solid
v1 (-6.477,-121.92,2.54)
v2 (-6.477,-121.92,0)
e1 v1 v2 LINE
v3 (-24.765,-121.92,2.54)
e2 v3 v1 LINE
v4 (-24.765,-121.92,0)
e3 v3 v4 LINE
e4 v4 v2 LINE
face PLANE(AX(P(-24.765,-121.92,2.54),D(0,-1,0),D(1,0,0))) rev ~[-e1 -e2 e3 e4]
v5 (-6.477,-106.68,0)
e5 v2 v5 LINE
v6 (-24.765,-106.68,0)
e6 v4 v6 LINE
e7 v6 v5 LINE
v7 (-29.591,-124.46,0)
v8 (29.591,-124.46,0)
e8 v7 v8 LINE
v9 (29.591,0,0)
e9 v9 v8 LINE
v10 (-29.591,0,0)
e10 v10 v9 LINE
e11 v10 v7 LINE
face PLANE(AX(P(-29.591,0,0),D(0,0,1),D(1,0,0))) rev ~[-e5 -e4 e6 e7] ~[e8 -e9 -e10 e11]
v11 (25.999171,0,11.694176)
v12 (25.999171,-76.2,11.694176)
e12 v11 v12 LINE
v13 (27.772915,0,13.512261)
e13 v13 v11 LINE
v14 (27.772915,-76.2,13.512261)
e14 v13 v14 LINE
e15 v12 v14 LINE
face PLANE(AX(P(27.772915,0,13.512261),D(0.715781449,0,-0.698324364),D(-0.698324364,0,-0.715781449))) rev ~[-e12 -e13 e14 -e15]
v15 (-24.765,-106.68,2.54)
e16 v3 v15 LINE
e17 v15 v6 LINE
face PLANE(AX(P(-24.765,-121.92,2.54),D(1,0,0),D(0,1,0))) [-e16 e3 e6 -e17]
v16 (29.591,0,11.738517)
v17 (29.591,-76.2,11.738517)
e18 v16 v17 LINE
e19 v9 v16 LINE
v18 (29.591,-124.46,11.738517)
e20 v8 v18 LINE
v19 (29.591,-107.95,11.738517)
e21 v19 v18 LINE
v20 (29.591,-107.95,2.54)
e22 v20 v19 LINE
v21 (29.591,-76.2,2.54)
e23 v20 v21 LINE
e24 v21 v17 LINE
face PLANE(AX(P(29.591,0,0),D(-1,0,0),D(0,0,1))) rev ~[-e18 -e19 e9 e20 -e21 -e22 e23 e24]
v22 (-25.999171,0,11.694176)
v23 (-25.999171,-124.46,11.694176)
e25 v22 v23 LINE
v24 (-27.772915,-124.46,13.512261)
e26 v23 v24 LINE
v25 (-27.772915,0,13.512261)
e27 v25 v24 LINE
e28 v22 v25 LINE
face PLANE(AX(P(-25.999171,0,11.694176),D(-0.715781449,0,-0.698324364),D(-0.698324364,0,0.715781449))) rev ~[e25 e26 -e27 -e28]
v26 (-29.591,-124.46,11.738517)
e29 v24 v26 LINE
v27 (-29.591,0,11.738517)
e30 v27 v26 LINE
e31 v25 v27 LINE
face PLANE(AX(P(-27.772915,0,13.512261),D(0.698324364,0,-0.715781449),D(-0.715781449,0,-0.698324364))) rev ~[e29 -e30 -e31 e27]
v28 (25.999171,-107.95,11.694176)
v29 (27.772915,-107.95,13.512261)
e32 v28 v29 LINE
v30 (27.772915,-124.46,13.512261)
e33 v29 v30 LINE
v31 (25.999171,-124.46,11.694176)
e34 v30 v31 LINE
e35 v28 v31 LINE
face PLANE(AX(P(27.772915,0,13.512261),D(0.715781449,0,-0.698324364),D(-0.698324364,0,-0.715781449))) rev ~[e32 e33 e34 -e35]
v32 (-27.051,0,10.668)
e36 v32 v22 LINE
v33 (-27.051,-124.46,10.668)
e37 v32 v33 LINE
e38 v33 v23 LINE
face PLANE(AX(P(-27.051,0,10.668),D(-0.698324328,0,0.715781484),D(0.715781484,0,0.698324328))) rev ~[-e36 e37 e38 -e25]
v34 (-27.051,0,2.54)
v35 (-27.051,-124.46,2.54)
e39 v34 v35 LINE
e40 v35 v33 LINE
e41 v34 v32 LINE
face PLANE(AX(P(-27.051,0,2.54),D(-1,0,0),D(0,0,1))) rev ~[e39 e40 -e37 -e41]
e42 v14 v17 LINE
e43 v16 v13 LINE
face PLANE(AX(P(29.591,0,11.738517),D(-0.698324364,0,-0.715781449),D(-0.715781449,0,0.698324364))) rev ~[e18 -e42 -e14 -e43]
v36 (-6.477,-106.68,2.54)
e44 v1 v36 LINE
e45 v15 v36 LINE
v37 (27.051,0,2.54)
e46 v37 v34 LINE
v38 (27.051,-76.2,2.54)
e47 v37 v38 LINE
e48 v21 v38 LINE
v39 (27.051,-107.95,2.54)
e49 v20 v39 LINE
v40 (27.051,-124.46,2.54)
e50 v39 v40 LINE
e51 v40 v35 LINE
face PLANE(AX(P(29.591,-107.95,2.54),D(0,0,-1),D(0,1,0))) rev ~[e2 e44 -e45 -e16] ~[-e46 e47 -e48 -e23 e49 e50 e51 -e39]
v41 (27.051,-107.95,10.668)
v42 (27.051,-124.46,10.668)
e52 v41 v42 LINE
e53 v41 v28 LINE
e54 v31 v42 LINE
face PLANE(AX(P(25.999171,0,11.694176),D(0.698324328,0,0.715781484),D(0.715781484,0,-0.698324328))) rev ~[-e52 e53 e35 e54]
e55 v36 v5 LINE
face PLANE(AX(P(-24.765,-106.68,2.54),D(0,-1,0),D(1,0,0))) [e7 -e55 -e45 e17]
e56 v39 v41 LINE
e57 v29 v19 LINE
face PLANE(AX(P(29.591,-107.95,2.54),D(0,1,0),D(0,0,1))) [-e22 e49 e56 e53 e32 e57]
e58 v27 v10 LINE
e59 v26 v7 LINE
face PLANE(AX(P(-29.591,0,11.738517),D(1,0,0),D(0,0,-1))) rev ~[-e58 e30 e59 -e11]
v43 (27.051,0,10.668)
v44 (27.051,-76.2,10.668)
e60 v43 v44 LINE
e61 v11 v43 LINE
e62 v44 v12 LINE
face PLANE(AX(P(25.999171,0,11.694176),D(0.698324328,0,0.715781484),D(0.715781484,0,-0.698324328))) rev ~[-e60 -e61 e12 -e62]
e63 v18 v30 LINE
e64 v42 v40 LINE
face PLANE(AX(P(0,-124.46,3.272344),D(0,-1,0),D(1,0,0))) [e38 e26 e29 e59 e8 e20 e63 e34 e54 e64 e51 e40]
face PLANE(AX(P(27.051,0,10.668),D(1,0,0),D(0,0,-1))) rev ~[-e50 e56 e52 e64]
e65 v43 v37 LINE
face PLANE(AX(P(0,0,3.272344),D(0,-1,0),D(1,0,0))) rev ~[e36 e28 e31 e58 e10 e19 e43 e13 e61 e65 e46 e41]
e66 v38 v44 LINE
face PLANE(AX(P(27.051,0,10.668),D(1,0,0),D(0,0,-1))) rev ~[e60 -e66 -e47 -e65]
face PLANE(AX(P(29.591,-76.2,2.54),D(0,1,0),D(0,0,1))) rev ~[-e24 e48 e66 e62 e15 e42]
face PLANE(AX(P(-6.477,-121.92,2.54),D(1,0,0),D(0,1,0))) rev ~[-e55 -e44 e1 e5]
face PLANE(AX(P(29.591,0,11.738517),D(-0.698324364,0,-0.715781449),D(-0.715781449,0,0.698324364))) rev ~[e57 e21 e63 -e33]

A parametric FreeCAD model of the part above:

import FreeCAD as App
import Part
import Sketcher

V = App.Vector
Q = App.Units.Quantity


def add_polygon(sketch, points):
    """Adds a closed chain of lines whose ends are joined by coincident constraints."""
    first, n = sketch.GeometryCount, len(points)
    for a, b in zip(points, points[1:] + points[:1]):
        sketch.addGeometry(Part.LineSegment(App.Vector(*a, 0), App.Vector(*b, 0)), False)
    for i in range(n):
        sketch.addConstraint(Sketcher.Constraint("Coincident", first + i, 2, first + (i + 1) % n, 1))

doc = App.newDocument("Part")
body = doc.addObject("PartDesign::Body", "Body")

# Sketch on XZ plane
sketch1 = body.newObject("Sketcher::SketchObject", "Sketch")
sketch1.AttachmentSupport = (doc.getObject("XZ_Plane"), [""])
sketch1.MapMode = "FlatFace"
add_polygon(sketch1, [(-29.6, 0), (29.6, 0), (29.6, 11.7), (27.8, 13.5), (26, 11.7), (27.1, 10.7), (27.1, 2.5), (-27.1, 2.5), (-27.1, 10.7), (-26, 11.7), (-27.8, 13.5), (-29.6, 11.7)])  # lines 0-11
sketch1.addConstraint(Sketcher.Constraint("Horizontal", 0))
sketch1.addConstraint(Sketcher.Constraint("Vertical", 1))
sketch1.addConstraint(Sketcher.Constraint("Vertical", 5))
sketch1.addConstraint(Sketcher.Constraint("Horizontal", 6))
sketch1.addConstraint(Sketcher.Constraint("Vertical", 7))
sketch1.addConstraint(Sketcher.Constraint("Vertical", 11))
sketch1.addConstraint(Sketcher.Constraint("Symmetric", 0, 2, 11, 2, -1, 1))
sketch1.addConstraint(Sketcher.Constraint("Symmetric", 4, 2, 7, 2, -2))
sketch1.addConstraint(Sketcher.Constraint("Symmetric", 3, 2, 8, 2, -2))
sketch1.addConstraint(Sketcher.Constraint("Symmetric", 2, 2, 9, 2, -2))
sketch1.addConstraint(Sketcher.Constraint("Perpendicular", 2, 3))
sketch1.addConstraint(Sketcher.Constraint("Perpendicular", 3, 4))
sketch1.addConstraint(Sketcher.Constraint("Perpendicular", 9, 10))
sketch1.addConstraint(Sketcher.Constraint("Equal", 2, 3))
sketch1.addConstraint(Sketcher.Constraint("Distance", 2, Q("0.1 in")))
sketch1.addConstraint(Sketcher.Constraint("DistanceX", 0, 1, 0, 2, Q("2.33 in")))
sketch1.addConstraint(Sketcher.Constraint("DistanceX", 6, 2, 6, 1, Q("2.13 in")))
sketch1.addConstraint(Sketcher.Constraint("DistanceY", 5, 2, 5, 1, Q("0.32 in")))
sketch1.addConstraint(Sketcher.Constraint("DistanceY", -1, 1, 5, 2, Q("0.1 in")))
sketch1.addConstraint(Sketcher.Constraint("DistanceY", 1, 1, 1, 2, 11.738517))
pad1 = body.newObject("PartDesign::Pad", "Pad")
pad1.Profile = sketch1
pad1.Length = Q("4.9 in")

# Sketch on YZ plane
sketch2 = body.newObject("Sketcher::SketchObject", "Sketch001")
sketch2.AttachmentSupport = (doc.getObject("YZ_Plane"), [""])
sketch2.MapMode = "FlatFace"
sketch2.AttachmentOffset = App.Placement(V(0, 0, 1.165 * 25.4), App.Rotation())
add_polygon(sketch2, [(-108, 27), (-108, 3), (-76, 3), (-76, 27)])  # lines 0-3
sketch2.addConstraint(Sketcher.Constraint("Vertical", 0))
sketch2.addConstraint(Sketcher.Constraint("Horizontal", 1))
sketch2.addConstraint(Sketcher.Constraint("Vertical", 2))
sketch2.addConstraint(Sketcher.Constraint("Horizontal", 3))
sketch2.addConstraint(Sketcher.Constraint("DistanceX", 1, 2, -1, 1, Q("3 in")))
sketch2.addConstraint(Sketcher.Constraint("DistanceX", 1, 1, 1, 2, Q("1.25 in")))
sketch2.addConstraint(Sketcher.Constraint("DistanceY", -1, 1, 0, 2, Q("0.1 in")))
sketch2.addConstraint(Sketcher.Constraint("DistanceY", 0, 2, 0, 1, 24.671034))
pocket1 = body.newObject("PartDesign::Pocket", "Pocket")
pocket1.Profile = sketch2
pocket1.Length = Q("0.34 in")

# Sketch on XY plane
sketch3 = body.newObject("Sketcher::SketchObject", "Sketch002")
sketch3.AttachmentSupport = (doc.getObject("XY_Plane"), [""])
sketch3.MapMode = "FlatFace"
sketch3.AttachmentOffset = App.Placement(V(0, 0, 0.1 * 25.4), App.Rotation())
add_polygon(sketch3, [(-25, -107), (-25, -122), (-6, -122), (-6, -107)])  # lines 0-3
sketch3.addConstraint(Sketcher.Constraint("Vertical", 0))
sketch3.addConstraint(Sketcher.Constraint("Horizontal", 1))
sketch3.addConstraint(Sketcher.Constraint("Vertical", 2))
sketch3.addConstraint(Sketcher.Constraint("Horizontal", 3))
sketch3.addConstraint(Sketcher.Constraint("DistanceY", 0, 2, 0, 1, Q("0.6 in")))
sketch3.addConstraint(Sketcher.Constraint("DistanceX", 1, 1, 1, 2, Q("0.72 in")))
sketch3.addConstraint(Sketcher.Constraint("DistanceY", 0, 2, -1, 1, Q("4.8 in")))
sketch3.addConstraint(Sketcher.Constraint("DistanceX", 0, 2, -1, 1, Q("0.975 in")))
pocket2 = body.newObject("PartDesign::Pocket", "Pocket001")
pocket2.Profile = sketch3
pocket2.Type = "ThroughAll"

doc.recompute()
